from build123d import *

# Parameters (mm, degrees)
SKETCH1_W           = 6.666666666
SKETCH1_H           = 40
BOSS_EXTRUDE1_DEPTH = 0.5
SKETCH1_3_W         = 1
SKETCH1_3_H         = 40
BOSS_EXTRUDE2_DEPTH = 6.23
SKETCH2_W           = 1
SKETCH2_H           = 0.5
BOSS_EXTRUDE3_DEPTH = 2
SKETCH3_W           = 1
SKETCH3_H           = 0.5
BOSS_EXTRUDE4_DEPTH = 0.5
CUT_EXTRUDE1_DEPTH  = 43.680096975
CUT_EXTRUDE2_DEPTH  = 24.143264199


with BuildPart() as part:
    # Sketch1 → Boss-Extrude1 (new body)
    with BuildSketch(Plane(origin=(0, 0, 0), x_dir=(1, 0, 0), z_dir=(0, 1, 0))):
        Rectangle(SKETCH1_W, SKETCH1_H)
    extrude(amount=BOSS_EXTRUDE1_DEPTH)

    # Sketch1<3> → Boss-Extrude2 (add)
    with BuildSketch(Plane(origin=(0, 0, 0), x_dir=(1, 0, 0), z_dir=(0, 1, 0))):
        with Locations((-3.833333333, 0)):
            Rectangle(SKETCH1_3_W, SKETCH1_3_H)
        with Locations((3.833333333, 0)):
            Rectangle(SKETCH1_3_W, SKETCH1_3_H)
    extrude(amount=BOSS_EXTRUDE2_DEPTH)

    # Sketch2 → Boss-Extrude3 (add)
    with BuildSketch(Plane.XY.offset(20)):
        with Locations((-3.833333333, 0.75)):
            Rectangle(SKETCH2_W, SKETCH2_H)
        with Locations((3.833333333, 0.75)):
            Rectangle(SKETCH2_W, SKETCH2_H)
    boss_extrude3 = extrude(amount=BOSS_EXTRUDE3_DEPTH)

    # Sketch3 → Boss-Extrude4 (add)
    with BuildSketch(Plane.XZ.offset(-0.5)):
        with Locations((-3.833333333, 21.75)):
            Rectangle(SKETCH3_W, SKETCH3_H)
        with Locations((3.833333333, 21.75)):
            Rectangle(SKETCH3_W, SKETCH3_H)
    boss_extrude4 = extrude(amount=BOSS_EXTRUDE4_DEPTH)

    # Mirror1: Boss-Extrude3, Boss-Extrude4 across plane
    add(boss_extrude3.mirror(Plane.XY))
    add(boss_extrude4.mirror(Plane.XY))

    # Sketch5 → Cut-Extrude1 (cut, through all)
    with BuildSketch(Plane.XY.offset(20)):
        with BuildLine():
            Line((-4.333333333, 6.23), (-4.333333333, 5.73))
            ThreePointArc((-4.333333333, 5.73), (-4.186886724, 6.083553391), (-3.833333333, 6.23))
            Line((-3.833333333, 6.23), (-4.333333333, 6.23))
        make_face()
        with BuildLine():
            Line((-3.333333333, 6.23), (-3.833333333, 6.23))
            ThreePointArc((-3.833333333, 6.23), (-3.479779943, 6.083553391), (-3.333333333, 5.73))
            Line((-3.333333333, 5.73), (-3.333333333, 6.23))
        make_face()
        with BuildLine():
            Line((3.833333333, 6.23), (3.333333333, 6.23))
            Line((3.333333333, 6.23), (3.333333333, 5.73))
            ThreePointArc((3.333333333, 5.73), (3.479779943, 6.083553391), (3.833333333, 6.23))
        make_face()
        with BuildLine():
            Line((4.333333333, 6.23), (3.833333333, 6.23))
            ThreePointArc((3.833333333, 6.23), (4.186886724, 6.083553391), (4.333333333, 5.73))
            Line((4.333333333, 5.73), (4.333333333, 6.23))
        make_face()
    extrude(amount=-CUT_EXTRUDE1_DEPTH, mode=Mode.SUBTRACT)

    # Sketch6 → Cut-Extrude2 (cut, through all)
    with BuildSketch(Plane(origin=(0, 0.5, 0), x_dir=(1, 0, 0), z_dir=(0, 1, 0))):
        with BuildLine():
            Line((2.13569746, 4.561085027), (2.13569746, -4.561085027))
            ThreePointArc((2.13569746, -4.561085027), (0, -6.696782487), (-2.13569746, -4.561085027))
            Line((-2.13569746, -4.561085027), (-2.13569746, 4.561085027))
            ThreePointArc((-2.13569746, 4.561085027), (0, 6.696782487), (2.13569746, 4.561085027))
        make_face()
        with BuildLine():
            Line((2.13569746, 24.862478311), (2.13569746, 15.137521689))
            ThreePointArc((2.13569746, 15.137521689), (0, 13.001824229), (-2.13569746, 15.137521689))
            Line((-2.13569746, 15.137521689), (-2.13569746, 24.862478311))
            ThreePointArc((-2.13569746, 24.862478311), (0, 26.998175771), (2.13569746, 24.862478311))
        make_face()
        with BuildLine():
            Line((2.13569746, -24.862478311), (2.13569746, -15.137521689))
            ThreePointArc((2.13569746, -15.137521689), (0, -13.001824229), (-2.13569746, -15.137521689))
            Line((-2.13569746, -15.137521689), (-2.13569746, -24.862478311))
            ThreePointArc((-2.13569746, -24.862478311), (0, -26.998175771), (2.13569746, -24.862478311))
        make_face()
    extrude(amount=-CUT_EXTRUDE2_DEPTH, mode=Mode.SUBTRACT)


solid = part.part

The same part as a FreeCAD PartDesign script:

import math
import FreeCAD as App
import Part
import Sketcher

V = App.Vector

doc = App.newDocument("Part")
body = doc.addObject("PartDesign::Body", "Body")

sketch1 = doc.addObject("Sketcher::SketchObject", "Sketch")
body.addObject(sketch1)
sketch1.AttachmentSupport = (doc.XZ_Plane, [""])
sketch1.MapMode = "FlatFace"
sketch1.addGeometry(Part.LineSegment(V(-3.333333, -20, 0), V(-3.333333, 20, 0)), False)
sketch1.addGeometry(Part.LineSegment(V(-3.333333, 20, 0), V(3.333333, 20, 0)), False)
sketch1.addGeometry(Part.LineSegment(V(3.333333, 20, 0), V(3.333333, -20, 0)), False)
sketch1.addGeometry(Part.LineSegment(V(3.333333, -20, 0), V(-3.333333, -20, 0)), False)
sketch1.addConstraint(Sketcher.Constraint("Coincident", 0, 2, 1, 1))
sketch1.addConstraint(Sketcher.Constraint("Coincident", 1, 2, 2, 1))
sketch1.addConstraint(Sketcher.Constraint("Coincident", 2, 2, 3, 1))
sketch1.addConstraint(Sketcher.Constraint("Coincident", 3, 2, 0, 1))
sketch1.addConstraint(Sketcher.Constraint("Vertical", 0))
sketch1.addConstraint(Sketcher.Constraint("Horizontal", 1))
sketch1.addConstraint(Sketcher.Constraint("Vertical", 2))
sketch1.addConstraint(Sketcher.Constraint("Horizontal", 3))
sketch1.addConstraint(Sketcher.Constraint("Symmetric", 0, 2, 2, 2, -1, 1))
sketch1.addConstraint(Sketcher.Constraint("DistanceY", 0, 1, 0, 2, 40.0))
sketch1.addConstraint(Sketcher.Constraint("DistanceX", 1, 1, 1, 2, 6.666667))
pad1 = doc.addObject("PartDesign::Pad", "Pad")
body.addObject(pad1)
pad1.Profile = sketch1
pad1.Length = 0.5
pad1.Reversed = True

sketch2 = doc.addObject("Sketcher::SketchObject", "Sketch001")
body.addObject(sketch2)
sketch2.AttachmentSupport = (doc.XZ_Plane, [""])
sketch2.MapMode = "FlatFace"
sketch2.addGeometry(Part.LineSegment(V(-4.333333, -20, 0), V(-4.333333, 20, 0)), False)
sketch2.addGeometry(Part.LineSegment(V(-4.333333, 20, 0), V(-3.333333, 20, 0)), False)
sketch2.addGeometry(Part.LineSegment(V(-3.333333, 20, 0), V(-3.333333, -20, 0)), False)
sketch2.addGeometry(Part.LineSegment(V(-3.333333, -20, 0), V(-4.333333, -20, 0)), False)
sketch2.addGeometry(Part.LineSegment(V(3.333333, -20, 0), V(3.333333, 20, 0)), False)
sketch2.addGeometry(Part.LineSegment(V(3.333333, 20, 0), V(4.333333, 20, 0)), False)
sketch2.addGeometry(Part.LineSegment(V(4.333333, 20, 0), V(4.333333, -20, 0)), False)
sketch2.addGeometry(Part.LineSegment(V(4.333333, -20, 0), V(3.333333, -20, 0)), False)
sketch2.addConstraint(Sketcher.Constraint("Coincident", 0, 2, 1, 1))
sketch2.addConstraint(Sketcher.Constraint("Coincident", 1, 2, 2, 1))
sketch2.addConstraint(Sketcher.Constraint("Coincident", 2, 2, 3, 1))
sketch2.addConstraint(Sketcher.Constraint("Coincident", 3, 2, 0, 1))
sketch2.addConstraint(Sketcher.Constraint("Coincident", 4, 2, 5, 1))
sketch2.addConstraint(Sketcher.Constraint("Coincident", 5, 2, 6, 1))
sketch2.addConstraint(Sketcher.Constraint("Coincident", 6, 2, 7, 1))
sketch2.addConstraint(Sketcher.Constraint("Coincident", 7, 2, 4, 1))
sketch2.addConstraint(Sketcher.Constraint("Vertical", 0))
sketch2.addConstraint(Sketcher.Constraint("Horizontal", 1))
sketch2.addConstraint(Sketcher.Constraint("Vertical", 2))
sketch2.addConstraint(Sketcher.Constraint("Horizontal", 3))
sketch2.addConstraint(Sketcher.Constraint("Vertical", 4))
sketch2.addConstraint(Sketcher.Constraint("Horizontal", 5))
sketch2.addConstraint(Sketcher.Constraint("Vertical", 6))
sketch2.addConstraint(Sketcher.Constraint("Horizontal", 7))
sketch2.addConstraint(Sketcher.Constraint("Symmetric", 2, 2, 4, 2, -1, 1))
sketch2.addConstraint(Sketcher.Constraint("Symmetric", 0, 2, 6, 2, -1, 1))
sketch2.addConstraint(Sketcher.Constraint("Horizontal", 1, 2, 4, 2))
sketch2.addConstraint(Sketcher.Constraint("DistanceX", 1, 1, 1, 2, 1.0))
sketch2.addConstraint(Sketcher.Constraint("DistanceY", 0, 1, 0, 2, 40.0))
sketch2.addConstraint(Sketcher.Constraint("DistanceX", 0, 2, -1, 1, 4.333333))
pad2 = doc.addObject("PartDesign::Pad", "Pad001")
body.addObject(pad2)
pad2.Profile = sketch2
pad2.Length = 6.23
pad2.Reversed = True

sketch3 = doc.addObject("Sketcher::SketchObject", "Sketch002")
body.addObject(sketch3)
sketch3.AttachmentSupport = (doc.XY_Plane, [""])
sketch3.MapMode = "FlatFace"
sketch3.AttachmentOffset = App.Placement(V(0, 0, 20), App.Rotation())
sketch3.addGeometry(Part.LineSegment(V(-4.333333, 1, 0), V(-4.333333, 0.5, 0)), False)
sketch3.addGeometry(Part.LineSegment(V(-4.333333, 0.5, 0), V(-3.333333, 0.5, 0)), False)
sketch3.addGeometry(Part.LineSegment(V(-3.333333, 0.5, 0), V(-3.333333, 1, 0)), False)
sketch3.addGeometry(Part.LineSegment(V(-3.333333, 1, 0), V(-4.333333, 1, 0)), False)
sketch3.addGeometry(Part.LineSegment(V(3.333333, 1, 0), V(3.333333, 0.5, 0)), False)
sketch3.addGeometry(Part.LineSegment(V(3.333333, 0.5, 0), V(4.333333, 0.5, 0)), False)
sketch3.addGeometry(Part.LineSegment(V(4.333333, 0.5, 0), V(4.333333, 1, 0)), False)
sketch3.addGeometry(Part.LineSegment(V(4.333333, 1, 0), V(3.333333, 1, 0)), False)
sketch3.addConstraint(Sketcher.Constraint("Coincident", 0, 2, 1, 1))
sketch3.addConstraint(Sketcher.Constraint("Coincident", 1, 2, 2, 1))
sketch3.addConstraint(Sketcher.Constraint("Coincident", 2, 2, 3, 1))
sketch3.addConstraint(Sketcher.Constraint("Coincident", 3, 2, 0, 1))
sketch3.addConstraint(Sketcher.Constraint("Coincident", 4, 2, 5, 1))
sketch3.addConstraint(Sketcher.Constraint("Coincident", 5, 2, 6, 1))
sketch3.addConstraint(Sketcher.Constraint("Coincident", 6, 2, 7, 1))
sketch3.addConstraint(Sketcher.Constraint("Coincident", 7, 2, 4, 1))
sketch3.addConstraint(Sketcher.Constraint("Vertical", 0))
sketch3.addConstraint(Sketcher.Constraint("Horizontal", 1))
sketch3.addConstraint(Sketcher.Constraint("Vertical", 2))
sketch3.addConstraint(Sketcher.Constraint("Horizontal", 3))
sketch3.addConstraint(Sketcher.Constraint("Vertical", 4))
sketch3.addConstraint(Sketcher.Constraint("Horizontal", 5))
sketch3.addConstraint(Sketcher.Constraint("Vertical", 6))
sketch3.addConstraint(Sketcher.Constraint("Horizontal", 7))
sketch3.addConstraint(Sketcher.Constraint("Symmetric", 1, 2, 4, 2, -2))
sketch3.addConstraint(Sketcher.Constraint("Symmetric", 3, 2, 6, 2, -2))
sketch3.addConstraint(Sketcher.Constraint("DistanceX", 1, 1, 1, 2, 1.0))
sketch3.addConstraint(Sketcher.Constraint("DistanceY", 0, 2, 0, 1, 0.5))
sketch3.addConstraint(Sketcher.Constraint("DistanceY", -1, 1, 2, 2, 1.0))
sketch3.addConstraint(Sketcher.Constraint("DistanceX", 0, 2, -1, 1, 4.333333))
pad3 = doc.addObject("PartDesign::Pad", "Pad002")
body.addObject(pad3)
pad3.Profile = sketch3
pad3.Length = 2

sketch4 = doc.addObject("Sketcher::SketchObject", "Sketch003")
body.addObject(sketch4)
sketch4.AttachmentSupport = (doc.XZ_Plane, [""])
sketch4.MapMode = "FlatFace"
sketch4.AttachmentOffset = App.Placement(V(0, 0, -0.5), App.Rotation())
sketch4.addGeometry(Part.LineSegment(V(-4.333333, 22, 0), V(-4.333333, 21.5, 0)), False)
sketch4.addGeometry(Part.LineSegment(V(-4.333333, 21.5, 0), V(-3.333333, 21.5, 0)), False)
sketch4.addGeometry(Part.LineSegment(V(-3.333333, 21.5, 0), V(-3.333333, 22, 0)), False)
sketch4.addGeometry(Part.LineSegment(V(-3.333333, 22, 0), V(-4.333333, 22, 0)), False)
sketch4.addGeometry(Part.LineSegment(V(3.333333, 22, 0), V(3.333333, 21.5, 0)), False)
sketch4.addGeometry(Part.LineSegment(V(3.333333, 21.5, 0), V(4.333333, 21.5, 0)), False)
sketch4.addGeometry(Part.LineSegment(V(4.333333, 21.5, 0), V(4.333333, 22, 0)), False)
sketch4.addGeometry(Part.LineSegment(V(4.333333, 22, 0), V(3.333333, 22, 0)), False)
sketch4.addConstraint(Sketcher.Constraint("Coincident", 0, 2, 1, 1))
sketch4.addConstraint(Sketcher.Constraint("Coincident", 1, 2, 2, 1))
sketch4.addConstraint(Sketcher.Constraint("Coincident", 2, 2, 3, 1))
sketch4.addConstraint(Sketcher.Constraint("Coincident", 3, 2, 0, 1))
sketch4.addConstraint(Sketcher.Constraint("Coincident", 4, 2, 5, 1))
sketch4.addConstraint(Sketcher.Constraint("Coincident", 5, 2, 6, 1))
sketch4.addConstraint(Sketcher.Constraint("Coincident", 6, 2, 7, 1))
sketch4.addConstraint(Sketcher.Constraint("Coincident", 7, 2, 4, 1))
sketch4.addConstraint(Sketcher.Constraint("Vertical", 0))
sketch4.addConstraint(Sketcher.Constraint("Horizontal", 1))
sketch4.addConstraint(Sketcher.Constraint("Vertical", 2))
sketch4.addConstraint(Sketcher.Constraint("Horizontal", 3))
sketch4.addConstraint(Sketcher.Constraint("Vertical", 4))
sketch4.addConstraint(Sketcher.Constraint("Horizontal", 5))
sketch4.addConstraint(Sketcher.Constraint("Vertical", 6))
sketch4.addConstraint(Sketcher.Constraint("Horizontal", 7))
sketch4.addConstraint(Sketcher.Constraint("Symmetric", 1, 2, 4, 2, -2))
sketch4.addConstraint(Sketcher.Constraint("Symmetric", 3, 2, 6, 2, -2))
sketch4.addConstraint(Sketcher.Constraint("DistanceX", 1, 1, 1, 2, 1.0))
sketch4.addConstraint(Sketcher.Constraint("DistanceY", 0, 2, 0, 1, 0.5))
sketch4.addConstraint(Sketcher.Constraint("DistanceY", -1, 1, 2, 2, 22.0))
sketch4.addConstraint(Sketcher.Constraint("DistanceX", 0, 2, -1, 1, 4.333333))
pad4 = doc.addObject("PartDesign::Pad", "Pad003")
body.addObject(pad4)
pad4.Profile = sketch4
pad4.Length = 0.5
doc.recompute()

mirrored = doc.addObject("PartDesign::Mirrored", "Mirrored")
body.addObject(mirrored)
mirrored.Originals = [pad3, pad4]
mirrored.MirrorPlane = (doc.XY_Plane, [""])
body.Tip = mirrored

sketch5 = doc.addObject("Sketcher::SketchObject", "Sketch004")
body.addObject(sketch5)
sketch5.AttachmentSupport = (doc.XY_Plane, [""])
sketch5.MapMode = "FlatFace"
sketch5.AttachmentOffset = App.Placement(V(0, 0, 20), App.Rotation())
sketch5.addGeometry(Part.LineSegment(V(-4.333333, 6.23, 0), V(-4.333333, 5.73, 0)), False)
sketch5.addGeometry(Part.ArcOfCircle(Part.Circle(V(-3.833333, 5.73, 0), V(0, 0, 1), 0.5), math.radians(90), math.radians(180)), False)
sketch5.addGeometry(Part.LineSegment(V(-3.833333, 6.23, 0), V(-4.333333, 6.23, 0)), False)
sketch5.addGeometry(Part.LineSegment(V(-3.333333, 6.23, 0), V(-3.833333, 6.23, 0)), False)
sketch5.addGeometry(Part.ArcOfCircle(Part.Circle(V(-3.833333, 5.73, 0), V(0, 0, 1), 0.5), math.radians(0), math.radians(90)), False)
sketch5.addGeometry(Part.LineSegment(V(-3.333333, 5.73, 0), V(-3.333333, 6.23, 0)), False)
sketch5.addGeometry(Part.LineSegment(V(3.833333, 6.23, 0), V(3.333333, 6.23, 0)), False)
sketch5.addGeometry(Part.LineSegment(V(3.333333, 6.23, 0), V(3.333333, 5.73, 0)), False)
sketch5.addGeometry(Part.ArcOfCircle(Part.Circle(V(3.833333, 5.73, 0), V(0, 0, 1), 0.5), math.radians(90), math.radians(180)), False)
sketch5.addGeometry(Part.LineSegment(V(4.333333, 6.23, 0), V(3.833333, 6.23, 0)), False)
sketch5.addGeometry(Part.ArcOfCircle(Part.Circle(V(3.833333, 5.73, 0), V(0, 0, 1), 0.5), math.radians(0), math.radians(90)), False)
sketch5.addGeometry(Part.LineSegment(V(4.333333, 5.73, 0), V(4.333333, 6.23, 0)), False)
sketch5.addConstraint(Sketcher.Constraint("Tangent", 0, 2, 1, 2))
sketch5.addConstraint(Sketcher.Constraint("Tangent", 1, 1, 2, 1))
sketch5.addConstraint(Sketcher.Constraint("Coincident", 2, 2, 0, 1))
sketch5.addConstraint(Sketcher.Constraint("Tangent", 3, 2, 4, 2))
sketch5.addConstraint(Sketcher.Constraint("Tangent", 4, 1, 5, 1))
sketch5.addConstraint(Sketcher.Constraint("Coincident", 5, 2, 3, 1))
sketch5.addConstraint(Sketcher.Constraint("Coincident", 6, 2, 7, 1))
sketch5.addConstraint(Sketcher.Constraint("Tangent", 7, 2, 8, 2))
sketch5.addConstraint(Sketcher.Constraint("Tangent", 8, 1, 6, 1))
sketch5.addConstraint(Sketcher.Constraint("Tangent", 9, 2, 10, 2))
sketch5.addConstraint(Sketcher.Constraint("Tangent", 10, 1, 11, 1))
sketch5.addConstraint(Sketcher.Constraint("Coincident", 11, 2, 9, 1))
sketch5.addConstraint(Sketcher.Constraint("Vertical", 0))
sketch5.addConstraint(Sketcher.Constraint("Horizontal", 2))
sketch5.addConstraint(Sketcher.Constraint("Horizontal", 3))
sketch5.addConstraint(Sketcher.Constraint("Vertical", 5))
sketch5.addConstraint(Sketcher.Constraint("Horizontal", 6))
sketch5.addConstraint(Sketcher.Constraint("Vertical", 7))
sketch5.addConstraint(Sketcher.Constraint("Horizontal", 9))
sketch5.addConstraint(Sketcher.Constraint("Vertical", 11))
sketch5.addConstraint(Sketcher.Constraint("Coincident", 4, 3, 1, 3))
sketch5.addConstraint(Sketcher.Constraint("Coincident", 10, 3, 8, 3))
sketch5.addConstraint(Sketcher.Constraint("Equal", 1, 4))
sketch5.addConstraint(Sketcher.Constraint("Equal", 4, 8))
sketch5.addConstraint(Sketcher.Constraint("Equal", 8, 10))
sketch5.addConstraint(Sketcher.Constraint("Symmetric", 1, 3, 8, 3, -2))
sketch5.addConstraint(Sketcher.Constraint("Radius", 1, 0.5))
sketch5.addConstraint(Sketcher.Constraint("DistanceY", -1, 1, 1, 3, 5.73))
sketch5.addConstraint(Sketcher.Constraint("DistanceX", 1, 3, -1, 1, 3.833333))
pocket1 = doc.addObject("PartDesign::Pocket", "Pocket")
body.addObject(pocket1)
pocket1.Profile = sketch5
pocket1.Type = "ThroughAll"

sketch6 = doc.addObject("Sketcher::SketchObject", "Sketch005")
body.addObject(sketch6)
sketch6.AttachmentSupport = (doc.XZ_Plane, [""])
sketch6.MapMode = "FlatFace"
sketch6.AttachmentOffset = App.Placement(V(0, 0, -0.5), App.Rotation())
sketch6.addGeometry(Part.LineSegment(V(2.135697, 4.561085, 0), V(2.135697, -4.561085, 0)), False)
sketch6.addGeometry(Part.ArcOfCircle(Part.Circle(V(0, -4.561085, 0), V(0, 0, 1), 2.135697), math.radians(180), math.radians(360)), False)
sketch6.addGeometry(Part.LineSegment(V(-2.135697, -4.561085, 0), V(-2.135697, 4.561085, 0)), False)
sketch6.addGeometry(Part.ArcOfCircle(Part.Circle(V(0, 4.561085, 0), V(0, 0, 1), 2.135697), math.radians(0), math.radians(180)), False)
sketch6.addGeometry(Part.LineSegment(V(2.135697, -15.137522, 0), V(2.135697, -24.862478, 0)), False)
sketch6.addGeometry(Part.ArcOfCircle(Part.Circle(V(0, -24.862478, 0), V(0, 0, 1), 2.135697), math.radians(180), math.radians(360)), False)
sketch6.addGeometry(Part.LineSegment(V(-2.135697, -24.862478, 0), V(-2.135697, -15.137522, 0)), False)
sketch6.addGeometry(Part.ArcOfCircle(Part.Circle(V(0, -15.137522, 0), V(0, 0, 1), 2.135697), math.radians(0), math.radians(180)), False)
sketch6.addGeometry(Part.LineSegment(V(2.135697, 24.862478, 0), V(2.135697, 15.137522, 0)), False)
sketch6.addGeometry(Part.ArcOfCircle(Part.Circle(V(0, 15.137522, 0), V(0, 0, 1), 2.135697), math.radians(180), math.radians(360)), False)
sketch6.addGeometry(Part.LineSegment(V(-2.135697, 15.137522, 0), V(-2.135697, 24.862478, 0)), False)
sketch6.addGeometry(Part.ArcOfCircle(Part.Circle(V(0, 24.862478, 0), V(0, 0, 1), 2.135697), math.radians(0), math.radians(180)), False)
sketch6.addConstraint(Sketcher.Constraint("Tangent", 0, 2, 1, 2))
sketch6.addConstraint(Sketcher.Constraint("Tangent", 1, 1, 2, 1))
sketch6.addConstraint(Sketcher.Constraint("Tangent", 2, 2, 3, 2))
sketch6.addConstraint(Sketcher.Constraint("Tangent", 3, 1, 0, 1))
sketch6.addConstraint(Sketcher.Constraint("Tangent", 4, 2, 5, 2))
sketch6.addConstraint(Sketcher.Constraint("Tangent", 5, 1, 6, 1))
sketch6.addConstraint(Sketcher.Constraint("Tangent", 6, 2, 7, 2))
sketch6.addConstraint(Sketcher.Constraint("Tangent", 7, 1, 4, 1))
sketch6.addConstraint(Sketcher.Constraint("Tangent", 8, 2, 9, 2))
sketch6.addConstraint(Sketcher.Constraint("Tangent", 9, 1, 10, 1))
sketch6.addConstraint(Sketcher.Constraint("Tangent", 10, 2, 11, 2))
sketch6.addConstraint(Sketcher.Constraint("Tangent", 11, 1, 8, 1))
sketch6.addConstraint(Sketcher.Constraint("Vertical", 0))
sketch6.addConstraint(Sketcher.Constraint("Vertical", 2))
sketch6.addConstraint(Sketcher.Constraint("Vertical", 4))
sketch6.addConstraint(Sketcher.Constraint("Vertical", 6))
sketch6.addConstraint(Sketcher.Constraint("Vertical", 8))
sketch6.addConstraint(Sketcher.Constraint("Vertical", 10))
sketch6.addConstraint(Sketcher.Constraint("Equal", 3, 5))
sketch6.addConstraint(Sketcher.Constraint("Equal", 7, 9))
sketch6.addConstraint(Sketcher.Constraint("Symmetric", 1, 3, 3, 3, -1, 1))
sketch6.addConstraint(Sketcher.Constraint("Symmetric", 7, 3, 9, 3, -1, 1))
sketch6.addConstraint(Sketcher.Constraint("Symmetric", 5, 3, 11, 3, -1))
sketch6.addConstraint(Sketcher.Constraint("DistanceY", 5, 3, 9, 3, 40.0))
sketch6.addConstraint(Sketcher.Constraint("Radius", 1, 2.135697))
sketch6.addConstraint(Sketcher.Constraint("DistanceY", 0, 2, 0, 1, 9.12217))
sketch6.addConstraint(Sketcher.Constraint("DistanceY", 4, 2, 4, 1, 9.724957))
pocket2 = doc.addObject("PartDesign::Pocket", "Pocket001")
body.addObject(pocket2)
pocket2.Profile = sketch6
pocket2.Type = "ThroughAll"
pocket2.Reversed = True

doc.recompute()
